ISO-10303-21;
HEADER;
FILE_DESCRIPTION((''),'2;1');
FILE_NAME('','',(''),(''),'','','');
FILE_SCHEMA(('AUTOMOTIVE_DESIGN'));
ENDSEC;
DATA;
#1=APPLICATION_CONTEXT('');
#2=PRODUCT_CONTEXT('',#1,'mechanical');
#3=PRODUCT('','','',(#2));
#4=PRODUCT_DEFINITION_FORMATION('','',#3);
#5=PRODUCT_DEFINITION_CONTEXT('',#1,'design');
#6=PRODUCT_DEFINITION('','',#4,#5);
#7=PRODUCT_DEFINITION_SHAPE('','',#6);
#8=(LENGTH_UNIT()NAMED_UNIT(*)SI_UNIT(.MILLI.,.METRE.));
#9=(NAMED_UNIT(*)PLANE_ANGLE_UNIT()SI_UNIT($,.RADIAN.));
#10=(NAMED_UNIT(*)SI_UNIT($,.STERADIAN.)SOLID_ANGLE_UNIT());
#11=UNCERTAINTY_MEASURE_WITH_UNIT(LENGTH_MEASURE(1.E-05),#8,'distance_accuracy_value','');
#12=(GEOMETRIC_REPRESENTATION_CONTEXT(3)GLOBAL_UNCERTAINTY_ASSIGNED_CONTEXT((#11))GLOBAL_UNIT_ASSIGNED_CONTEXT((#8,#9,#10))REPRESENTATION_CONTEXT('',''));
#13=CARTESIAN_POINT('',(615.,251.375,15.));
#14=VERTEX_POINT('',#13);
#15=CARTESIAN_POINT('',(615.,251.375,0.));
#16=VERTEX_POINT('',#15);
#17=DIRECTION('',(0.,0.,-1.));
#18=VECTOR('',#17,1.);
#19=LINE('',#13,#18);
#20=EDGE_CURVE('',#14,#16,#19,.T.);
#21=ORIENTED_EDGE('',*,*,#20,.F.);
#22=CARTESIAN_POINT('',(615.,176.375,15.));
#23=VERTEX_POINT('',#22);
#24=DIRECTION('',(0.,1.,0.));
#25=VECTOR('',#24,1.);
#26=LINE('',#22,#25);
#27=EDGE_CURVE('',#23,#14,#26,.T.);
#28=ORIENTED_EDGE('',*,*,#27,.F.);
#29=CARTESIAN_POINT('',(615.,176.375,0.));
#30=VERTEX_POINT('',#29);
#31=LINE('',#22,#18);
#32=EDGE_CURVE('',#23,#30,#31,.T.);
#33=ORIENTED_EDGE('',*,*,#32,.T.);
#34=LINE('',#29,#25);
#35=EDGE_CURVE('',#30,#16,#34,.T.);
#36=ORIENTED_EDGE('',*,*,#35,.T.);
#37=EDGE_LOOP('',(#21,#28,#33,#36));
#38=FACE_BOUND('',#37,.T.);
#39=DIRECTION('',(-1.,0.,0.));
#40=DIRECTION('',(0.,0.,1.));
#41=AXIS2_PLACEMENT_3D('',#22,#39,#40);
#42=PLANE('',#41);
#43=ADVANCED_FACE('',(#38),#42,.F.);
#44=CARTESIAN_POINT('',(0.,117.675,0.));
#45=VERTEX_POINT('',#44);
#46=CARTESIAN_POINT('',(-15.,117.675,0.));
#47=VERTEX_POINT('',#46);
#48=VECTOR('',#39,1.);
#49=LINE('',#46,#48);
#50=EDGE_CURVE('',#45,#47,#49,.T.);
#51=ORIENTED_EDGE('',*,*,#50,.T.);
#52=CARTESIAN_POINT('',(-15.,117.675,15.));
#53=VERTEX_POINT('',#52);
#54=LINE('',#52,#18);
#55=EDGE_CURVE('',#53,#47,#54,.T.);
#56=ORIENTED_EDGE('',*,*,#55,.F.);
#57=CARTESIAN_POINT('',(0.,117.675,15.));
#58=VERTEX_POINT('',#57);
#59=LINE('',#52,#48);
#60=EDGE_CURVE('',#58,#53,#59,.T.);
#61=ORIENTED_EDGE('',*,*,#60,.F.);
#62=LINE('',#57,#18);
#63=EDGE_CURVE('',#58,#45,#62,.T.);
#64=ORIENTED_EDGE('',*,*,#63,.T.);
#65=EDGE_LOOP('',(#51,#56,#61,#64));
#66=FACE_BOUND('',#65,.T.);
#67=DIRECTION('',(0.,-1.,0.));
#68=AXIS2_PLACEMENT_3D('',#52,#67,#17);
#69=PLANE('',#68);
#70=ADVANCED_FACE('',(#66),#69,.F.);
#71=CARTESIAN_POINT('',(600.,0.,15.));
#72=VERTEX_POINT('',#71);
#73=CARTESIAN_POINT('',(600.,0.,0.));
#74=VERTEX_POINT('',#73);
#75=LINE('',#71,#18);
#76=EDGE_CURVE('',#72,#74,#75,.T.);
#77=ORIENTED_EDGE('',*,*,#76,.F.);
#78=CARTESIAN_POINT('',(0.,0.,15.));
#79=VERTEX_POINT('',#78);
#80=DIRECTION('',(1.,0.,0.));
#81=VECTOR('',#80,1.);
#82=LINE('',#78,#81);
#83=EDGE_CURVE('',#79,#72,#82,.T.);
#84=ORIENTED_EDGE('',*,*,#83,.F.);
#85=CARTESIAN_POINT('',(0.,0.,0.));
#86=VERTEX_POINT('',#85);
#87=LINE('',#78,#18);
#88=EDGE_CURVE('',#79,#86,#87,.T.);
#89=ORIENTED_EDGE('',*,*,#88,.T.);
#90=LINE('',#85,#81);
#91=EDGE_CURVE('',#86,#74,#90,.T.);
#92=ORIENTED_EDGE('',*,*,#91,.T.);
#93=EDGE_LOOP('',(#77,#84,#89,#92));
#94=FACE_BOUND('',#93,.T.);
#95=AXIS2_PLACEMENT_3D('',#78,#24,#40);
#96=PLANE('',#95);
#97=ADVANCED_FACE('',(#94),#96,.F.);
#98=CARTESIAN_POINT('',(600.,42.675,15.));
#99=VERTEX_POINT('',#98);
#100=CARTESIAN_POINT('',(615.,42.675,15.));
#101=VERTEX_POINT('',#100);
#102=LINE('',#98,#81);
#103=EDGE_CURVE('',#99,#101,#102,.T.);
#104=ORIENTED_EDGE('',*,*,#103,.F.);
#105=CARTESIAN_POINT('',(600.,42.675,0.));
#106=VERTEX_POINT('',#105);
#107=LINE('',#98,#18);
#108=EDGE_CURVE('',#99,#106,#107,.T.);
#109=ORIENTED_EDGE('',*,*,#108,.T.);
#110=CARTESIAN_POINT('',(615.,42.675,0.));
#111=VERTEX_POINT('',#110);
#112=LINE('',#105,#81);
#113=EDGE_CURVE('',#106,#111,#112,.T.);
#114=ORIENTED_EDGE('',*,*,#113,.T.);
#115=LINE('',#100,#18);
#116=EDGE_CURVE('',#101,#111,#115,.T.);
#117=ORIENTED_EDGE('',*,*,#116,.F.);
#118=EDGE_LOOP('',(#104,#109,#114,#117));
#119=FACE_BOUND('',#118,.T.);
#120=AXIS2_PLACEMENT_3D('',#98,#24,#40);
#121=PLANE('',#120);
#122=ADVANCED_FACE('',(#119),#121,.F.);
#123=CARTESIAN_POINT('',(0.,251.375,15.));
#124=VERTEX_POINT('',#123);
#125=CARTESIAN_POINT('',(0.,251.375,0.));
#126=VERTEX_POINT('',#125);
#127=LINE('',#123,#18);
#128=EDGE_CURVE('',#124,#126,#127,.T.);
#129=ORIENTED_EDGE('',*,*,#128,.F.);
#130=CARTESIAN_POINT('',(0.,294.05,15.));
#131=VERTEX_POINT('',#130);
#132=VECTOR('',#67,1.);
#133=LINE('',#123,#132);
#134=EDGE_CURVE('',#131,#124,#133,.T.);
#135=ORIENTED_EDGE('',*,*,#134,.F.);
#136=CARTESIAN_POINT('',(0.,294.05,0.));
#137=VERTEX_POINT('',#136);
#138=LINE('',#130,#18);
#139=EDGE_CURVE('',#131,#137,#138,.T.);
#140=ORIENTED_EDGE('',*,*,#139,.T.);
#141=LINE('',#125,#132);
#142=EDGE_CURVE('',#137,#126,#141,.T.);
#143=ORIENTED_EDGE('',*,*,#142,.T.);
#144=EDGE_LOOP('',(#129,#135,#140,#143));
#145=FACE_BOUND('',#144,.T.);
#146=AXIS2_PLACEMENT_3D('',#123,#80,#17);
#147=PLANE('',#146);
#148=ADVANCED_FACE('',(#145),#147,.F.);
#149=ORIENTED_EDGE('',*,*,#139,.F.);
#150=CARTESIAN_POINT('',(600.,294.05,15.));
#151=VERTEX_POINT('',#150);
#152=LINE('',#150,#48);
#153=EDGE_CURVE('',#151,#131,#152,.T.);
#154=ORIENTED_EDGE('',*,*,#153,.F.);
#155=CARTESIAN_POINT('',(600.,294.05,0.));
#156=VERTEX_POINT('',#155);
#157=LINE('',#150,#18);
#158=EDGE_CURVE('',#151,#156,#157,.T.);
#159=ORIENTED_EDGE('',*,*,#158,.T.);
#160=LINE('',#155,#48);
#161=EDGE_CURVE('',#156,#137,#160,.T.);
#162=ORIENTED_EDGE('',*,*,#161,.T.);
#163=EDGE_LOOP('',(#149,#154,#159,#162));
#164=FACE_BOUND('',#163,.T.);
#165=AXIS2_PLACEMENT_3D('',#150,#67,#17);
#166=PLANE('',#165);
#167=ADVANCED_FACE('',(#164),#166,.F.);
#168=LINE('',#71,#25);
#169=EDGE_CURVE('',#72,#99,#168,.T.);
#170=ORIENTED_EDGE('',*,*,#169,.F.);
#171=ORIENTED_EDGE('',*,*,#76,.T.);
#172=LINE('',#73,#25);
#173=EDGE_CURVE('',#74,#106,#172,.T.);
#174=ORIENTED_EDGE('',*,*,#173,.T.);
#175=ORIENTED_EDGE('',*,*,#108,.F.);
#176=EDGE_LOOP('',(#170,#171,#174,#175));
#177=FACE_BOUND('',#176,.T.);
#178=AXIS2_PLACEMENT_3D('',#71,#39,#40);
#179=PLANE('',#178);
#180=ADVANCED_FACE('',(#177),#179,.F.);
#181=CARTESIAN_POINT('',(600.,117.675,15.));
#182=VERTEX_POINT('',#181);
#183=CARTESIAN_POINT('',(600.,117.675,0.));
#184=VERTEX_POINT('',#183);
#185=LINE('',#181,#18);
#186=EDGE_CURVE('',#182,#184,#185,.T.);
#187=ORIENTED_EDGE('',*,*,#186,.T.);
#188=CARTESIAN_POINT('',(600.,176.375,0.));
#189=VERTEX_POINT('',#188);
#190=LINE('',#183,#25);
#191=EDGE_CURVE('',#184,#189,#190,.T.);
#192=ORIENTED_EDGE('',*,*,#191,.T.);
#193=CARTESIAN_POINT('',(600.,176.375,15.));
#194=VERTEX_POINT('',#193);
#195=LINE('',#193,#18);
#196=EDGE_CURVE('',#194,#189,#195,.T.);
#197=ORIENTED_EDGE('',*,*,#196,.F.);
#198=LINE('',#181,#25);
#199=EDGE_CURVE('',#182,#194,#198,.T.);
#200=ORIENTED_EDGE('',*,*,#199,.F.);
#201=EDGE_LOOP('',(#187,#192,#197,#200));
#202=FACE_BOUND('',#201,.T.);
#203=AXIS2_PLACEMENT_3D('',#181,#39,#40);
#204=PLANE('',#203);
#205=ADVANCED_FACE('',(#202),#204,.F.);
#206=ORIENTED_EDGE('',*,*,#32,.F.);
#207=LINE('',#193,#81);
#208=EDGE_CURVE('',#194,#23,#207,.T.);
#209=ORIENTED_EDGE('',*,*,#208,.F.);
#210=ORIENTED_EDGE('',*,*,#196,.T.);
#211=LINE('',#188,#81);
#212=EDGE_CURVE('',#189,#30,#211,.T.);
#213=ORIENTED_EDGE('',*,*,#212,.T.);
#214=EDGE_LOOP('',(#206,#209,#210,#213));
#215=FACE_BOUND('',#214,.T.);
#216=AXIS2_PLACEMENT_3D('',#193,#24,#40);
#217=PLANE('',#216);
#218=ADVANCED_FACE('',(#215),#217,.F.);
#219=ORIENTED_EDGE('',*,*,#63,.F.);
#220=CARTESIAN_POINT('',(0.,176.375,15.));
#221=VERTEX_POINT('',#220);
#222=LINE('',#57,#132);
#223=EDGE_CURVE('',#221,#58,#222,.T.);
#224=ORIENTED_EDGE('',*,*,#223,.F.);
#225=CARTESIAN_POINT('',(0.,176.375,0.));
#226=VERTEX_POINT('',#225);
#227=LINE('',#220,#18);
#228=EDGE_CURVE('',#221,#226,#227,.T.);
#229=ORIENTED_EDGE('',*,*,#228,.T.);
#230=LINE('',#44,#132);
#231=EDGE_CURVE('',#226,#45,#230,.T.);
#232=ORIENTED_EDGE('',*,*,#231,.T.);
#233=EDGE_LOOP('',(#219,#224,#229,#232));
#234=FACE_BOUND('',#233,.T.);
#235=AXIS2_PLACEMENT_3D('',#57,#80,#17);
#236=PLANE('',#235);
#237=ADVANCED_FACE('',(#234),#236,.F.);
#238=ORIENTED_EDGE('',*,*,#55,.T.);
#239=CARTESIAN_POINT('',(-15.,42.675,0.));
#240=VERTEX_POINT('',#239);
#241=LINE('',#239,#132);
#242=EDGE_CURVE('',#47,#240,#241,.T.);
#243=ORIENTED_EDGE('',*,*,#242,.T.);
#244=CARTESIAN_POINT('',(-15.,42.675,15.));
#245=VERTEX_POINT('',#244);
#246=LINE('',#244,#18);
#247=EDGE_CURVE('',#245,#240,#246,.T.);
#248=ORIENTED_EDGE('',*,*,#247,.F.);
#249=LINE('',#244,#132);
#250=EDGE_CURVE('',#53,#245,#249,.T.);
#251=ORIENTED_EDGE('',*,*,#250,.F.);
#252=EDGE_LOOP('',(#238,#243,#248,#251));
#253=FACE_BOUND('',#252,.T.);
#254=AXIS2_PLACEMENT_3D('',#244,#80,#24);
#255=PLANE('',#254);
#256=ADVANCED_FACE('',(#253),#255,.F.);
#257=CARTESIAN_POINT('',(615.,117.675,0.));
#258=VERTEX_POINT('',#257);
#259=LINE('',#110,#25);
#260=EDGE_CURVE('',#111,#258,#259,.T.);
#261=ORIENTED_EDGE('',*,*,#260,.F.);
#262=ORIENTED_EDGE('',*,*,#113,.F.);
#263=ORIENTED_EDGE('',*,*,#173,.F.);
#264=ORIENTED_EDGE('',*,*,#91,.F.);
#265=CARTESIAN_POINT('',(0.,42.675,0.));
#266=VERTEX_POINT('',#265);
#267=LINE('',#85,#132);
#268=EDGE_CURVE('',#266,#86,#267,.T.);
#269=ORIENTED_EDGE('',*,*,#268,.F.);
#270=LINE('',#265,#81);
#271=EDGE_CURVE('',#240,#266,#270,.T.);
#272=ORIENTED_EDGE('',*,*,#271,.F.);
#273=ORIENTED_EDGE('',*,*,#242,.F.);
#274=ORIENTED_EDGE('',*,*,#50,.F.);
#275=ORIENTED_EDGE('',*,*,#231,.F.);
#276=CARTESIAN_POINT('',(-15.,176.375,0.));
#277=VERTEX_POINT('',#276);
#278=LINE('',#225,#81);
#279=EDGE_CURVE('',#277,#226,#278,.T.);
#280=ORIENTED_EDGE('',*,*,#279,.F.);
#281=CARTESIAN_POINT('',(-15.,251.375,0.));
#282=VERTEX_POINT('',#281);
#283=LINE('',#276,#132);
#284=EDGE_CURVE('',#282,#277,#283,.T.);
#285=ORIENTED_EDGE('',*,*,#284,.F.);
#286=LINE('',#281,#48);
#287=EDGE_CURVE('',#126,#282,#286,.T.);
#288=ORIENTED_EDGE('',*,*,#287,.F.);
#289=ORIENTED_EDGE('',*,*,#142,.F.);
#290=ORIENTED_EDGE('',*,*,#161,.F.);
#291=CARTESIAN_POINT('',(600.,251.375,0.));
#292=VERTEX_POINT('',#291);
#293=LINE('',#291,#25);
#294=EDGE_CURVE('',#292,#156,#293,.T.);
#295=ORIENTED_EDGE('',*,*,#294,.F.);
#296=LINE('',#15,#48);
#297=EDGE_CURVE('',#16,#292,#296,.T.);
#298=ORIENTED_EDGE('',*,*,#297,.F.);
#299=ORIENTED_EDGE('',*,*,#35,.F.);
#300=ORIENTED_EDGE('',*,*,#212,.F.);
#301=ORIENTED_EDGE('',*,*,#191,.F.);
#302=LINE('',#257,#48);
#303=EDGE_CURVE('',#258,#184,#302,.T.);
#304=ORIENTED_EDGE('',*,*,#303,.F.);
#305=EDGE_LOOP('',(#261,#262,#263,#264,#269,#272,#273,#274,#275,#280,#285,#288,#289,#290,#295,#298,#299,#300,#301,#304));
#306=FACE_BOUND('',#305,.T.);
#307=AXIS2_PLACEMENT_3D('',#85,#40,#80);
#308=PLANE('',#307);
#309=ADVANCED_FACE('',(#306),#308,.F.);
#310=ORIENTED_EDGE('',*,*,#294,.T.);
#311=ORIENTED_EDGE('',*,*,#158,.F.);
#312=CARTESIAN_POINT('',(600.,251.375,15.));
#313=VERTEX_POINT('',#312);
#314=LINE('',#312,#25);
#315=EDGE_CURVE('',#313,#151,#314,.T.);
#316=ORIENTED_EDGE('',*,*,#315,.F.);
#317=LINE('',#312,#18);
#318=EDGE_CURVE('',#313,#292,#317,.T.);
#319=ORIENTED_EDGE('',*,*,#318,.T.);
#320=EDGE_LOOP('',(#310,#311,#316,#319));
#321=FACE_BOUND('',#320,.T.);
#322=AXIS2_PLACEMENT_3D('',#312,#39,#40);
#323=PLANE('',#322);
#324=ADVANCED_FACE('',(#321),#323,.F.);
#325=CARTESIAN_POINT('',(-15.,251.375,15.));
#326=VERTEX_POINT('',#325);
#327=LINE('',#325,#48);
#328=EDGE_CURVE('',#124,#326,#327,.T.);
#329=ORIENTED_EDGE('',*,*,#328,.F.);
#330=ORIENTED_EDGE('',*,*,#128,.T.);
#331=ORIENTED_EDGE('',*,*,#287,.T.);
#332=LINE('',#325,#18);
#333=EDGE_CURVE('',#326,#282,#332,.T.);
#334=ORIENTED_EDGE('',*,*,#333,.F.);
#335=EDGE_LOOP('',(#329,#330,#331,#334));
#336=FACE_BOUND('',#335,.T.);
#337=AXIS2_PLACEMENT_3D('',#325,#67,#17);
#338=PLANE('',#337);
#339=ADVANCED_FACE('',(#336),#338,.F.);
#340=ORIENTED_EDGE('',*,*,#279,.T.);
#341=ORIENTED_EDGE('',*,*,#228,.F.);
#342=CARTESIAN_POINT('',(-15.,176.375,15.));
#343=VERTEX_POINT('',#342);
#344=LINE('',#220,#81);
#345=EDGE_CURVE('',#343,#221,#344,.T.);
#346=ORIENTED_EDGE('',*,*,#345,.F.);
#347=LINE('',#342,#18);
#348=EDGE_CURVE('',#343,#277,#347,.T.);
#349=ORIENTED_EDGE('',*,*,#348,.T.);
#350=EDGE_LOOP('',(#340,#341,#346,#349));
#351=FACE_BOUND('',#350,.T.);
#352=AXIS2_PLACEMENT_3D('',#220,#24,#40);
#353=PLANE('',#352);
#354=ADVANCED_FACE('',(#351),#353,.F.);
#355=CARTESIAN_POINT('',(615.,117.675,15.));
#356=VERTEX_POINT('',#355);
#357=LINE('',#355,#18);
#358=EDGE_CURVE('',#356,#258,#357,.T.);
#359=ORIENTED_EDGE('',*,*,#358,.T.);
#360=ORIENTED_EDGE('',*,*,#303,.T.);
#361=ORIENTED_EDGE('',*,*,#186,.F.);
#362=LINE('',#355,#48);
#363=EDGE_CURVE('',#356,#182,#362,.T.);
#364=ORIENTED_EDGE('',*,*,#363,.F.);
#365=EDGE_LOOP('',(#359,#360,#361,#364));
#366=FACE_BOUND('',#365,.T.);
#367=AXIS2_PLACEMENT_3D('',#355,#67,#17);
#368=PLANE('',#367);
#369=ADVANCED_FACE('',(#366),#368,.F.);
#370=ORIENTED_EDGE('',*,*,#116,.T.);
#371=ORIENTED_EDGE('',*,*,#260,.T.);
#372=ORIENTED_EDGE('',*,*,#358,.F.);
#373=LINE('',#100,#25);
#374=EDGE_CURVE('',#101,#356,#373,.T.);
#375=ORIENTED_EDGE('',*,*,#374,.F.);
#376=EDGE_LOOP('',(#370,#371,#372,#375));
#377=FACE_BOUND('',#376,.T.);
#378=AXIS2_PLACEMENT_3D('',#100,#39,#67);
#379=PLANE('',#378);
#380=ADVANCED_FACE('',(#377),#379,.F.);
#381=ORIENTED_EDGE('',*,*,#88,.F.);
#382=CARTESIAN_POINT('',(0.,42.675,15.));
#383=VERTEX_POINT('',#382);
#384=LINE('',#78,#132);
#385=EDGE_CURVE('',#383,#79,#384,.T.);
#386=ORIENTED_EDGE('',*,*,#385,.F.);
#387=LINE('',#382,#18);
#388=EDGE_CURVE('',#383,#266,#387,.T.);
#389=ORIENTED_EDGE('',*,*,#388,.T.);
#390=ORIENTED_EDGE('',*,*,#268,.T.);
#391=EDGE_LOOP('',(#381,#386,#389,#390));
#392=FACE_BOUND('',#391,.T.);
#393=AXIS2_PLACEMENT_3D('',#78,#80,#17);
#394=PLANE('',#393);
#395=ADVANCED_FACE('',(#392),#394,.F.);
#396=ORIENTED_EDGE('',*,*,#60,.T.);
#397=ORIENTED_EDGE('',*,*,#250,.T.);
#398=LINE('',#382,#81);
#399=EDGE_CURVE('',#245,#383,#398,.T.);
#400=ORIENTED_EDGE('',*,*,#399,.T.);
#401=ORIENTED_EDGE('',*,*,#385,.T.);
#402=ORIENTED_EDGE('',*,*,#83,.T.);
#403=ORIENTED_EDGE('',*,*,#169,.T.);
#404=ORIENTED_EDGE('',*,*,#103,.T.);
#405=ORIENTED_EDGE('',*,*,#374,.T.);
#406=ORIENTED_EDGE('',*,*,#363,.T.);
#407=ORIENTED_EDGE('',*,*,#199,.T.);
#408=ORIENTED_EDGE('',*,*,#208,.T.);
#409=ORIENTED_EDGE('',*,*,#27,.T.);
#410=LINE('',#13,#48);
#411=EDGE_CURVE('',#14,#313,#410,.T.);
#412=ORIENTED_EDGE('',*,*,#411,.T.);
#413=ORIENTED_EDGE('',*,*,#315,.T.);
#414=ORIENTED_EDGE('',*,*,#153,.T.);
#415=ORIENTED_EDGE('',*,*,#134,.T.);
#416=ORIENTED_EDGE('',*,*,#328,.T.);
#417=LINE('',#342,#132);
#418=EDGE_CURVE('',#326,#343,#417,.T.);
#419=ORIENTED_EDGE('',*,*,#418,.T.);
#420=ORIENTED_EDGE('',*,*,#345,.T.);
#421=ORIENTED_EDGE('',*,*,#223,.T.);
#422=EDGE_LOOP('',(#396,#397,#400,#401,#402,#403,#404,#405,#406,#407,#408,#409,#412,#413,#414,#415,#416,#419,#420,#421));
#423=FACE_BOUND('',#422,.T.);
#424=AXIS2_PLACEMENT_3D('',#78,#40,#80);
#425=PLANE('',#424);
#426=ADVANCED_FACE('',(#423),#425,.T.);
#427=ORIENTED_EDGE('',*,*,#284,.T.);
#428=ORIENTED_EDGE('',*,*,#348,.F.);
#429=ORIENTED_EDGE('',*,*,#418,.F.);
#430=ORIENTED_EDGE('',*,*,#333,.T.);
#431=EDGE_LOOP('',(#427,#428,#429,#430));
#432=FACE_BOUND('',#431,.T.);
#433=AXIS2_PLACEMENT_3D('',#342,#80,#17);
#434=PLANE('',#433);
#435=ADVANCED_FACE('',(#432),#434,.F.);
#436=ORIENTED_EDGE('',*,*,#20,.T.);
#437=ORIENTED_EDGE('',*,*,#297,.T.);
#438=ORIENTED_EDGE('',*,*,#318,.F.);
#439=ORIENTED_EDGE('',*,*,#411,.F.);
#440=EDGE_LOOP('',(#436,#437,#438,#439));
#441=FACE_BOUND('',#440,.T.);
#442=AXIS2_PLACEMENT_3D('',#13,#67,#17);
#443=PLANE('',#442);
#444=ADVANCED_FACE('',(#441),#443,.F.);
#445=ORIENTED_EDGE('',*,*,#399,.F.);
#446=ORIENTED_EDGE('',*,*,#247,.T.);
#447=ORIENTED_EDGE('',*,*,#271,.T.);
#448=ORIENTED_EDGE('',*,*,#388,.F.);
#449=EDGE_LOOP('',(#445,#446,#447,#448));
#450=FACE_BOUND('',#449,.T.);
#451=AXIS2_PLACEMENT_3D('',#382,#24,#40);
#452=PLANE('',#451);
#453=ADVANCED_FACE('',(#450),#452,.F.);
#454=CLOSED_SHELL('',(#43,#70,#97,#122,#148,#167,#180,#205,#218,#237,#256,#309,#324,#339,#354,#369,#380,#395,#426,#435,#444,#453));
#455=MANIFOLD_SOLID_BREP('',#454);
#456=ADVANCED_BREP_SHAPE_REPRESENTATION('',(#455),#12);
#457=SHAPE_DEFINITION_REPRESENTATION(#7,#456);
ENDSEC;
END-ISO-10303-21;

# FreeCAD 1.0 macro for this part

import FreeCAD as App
import Part
import Sketcher
Q = App.Units.Quantity


def add_polygon(sketch, points):
    """Adds a closed chain of lines whose ends are joined by coincident constraints."""
    first, n = sketch.GeometryCount, len(points)
    for a, b in zip(points, points[1:] + points[:1]):
        sketch.addGeometry(Part.LineSegment(App.Vector(*a, 0), App.Vector(*b, 0)), False)
    for i in range(n):
        sketch.addConstraint(Sketcher.Constraint("Coincident", first + i, 2, first + (i + 1) % n, 1))

doc = App.newDocument("Part")
body = doc.addObject("PartDesign::Body", "Body")

sketch1 = doc.addObject("Sketcher::SketchObject", "Sketch")
body.addObject(sketch1)
sketch1.AttachmentSupport = (doc.XY_Plane, [""])
sketch1.MapMode = "FlatFace"
add_polygon(sketch1, [(0, 0), (600, 0), (600, 42.675), (615, 42.675), (615, 117.675), (600, 117.675), (600, 176.375), (615, 176.375), (615, 251.375), (600, 251.375), (600, 294.05), (0, 294.05), (0, 251.375), (-15, 251.375), (-15, 176.375), (0, 176.375), (0, 117.675), (-15, 117.675), (-15, 42.675), (0, 42.675)])
sketch1.addConstraint([
    Sketcher.Constraint("Horizontal", 0),
    Sketcher.Constraint("Vertical", 1),
    Sketcher.Constraint("Horizontal", 2),
    Sketcher.Constraint("Vertical", 3),
    Sketcher.Constraint("Horizontal", 4),
    Sketcher.Constraint("Vertical", 5),
    Sketcher.Constraint("Horizontal", 6),
    Sketcher.Constraint("Vertical", 7),
    Sketcher.Constraint("Horizontal", 8),
    Sketcher.Constraint("Vertical", 9),
    Sketcher.Constraint("Horizontal", 10),
    Sketcher.Constraint("Vertical", 11),
    Sketcher.Constraint("Horizontal", 12),
    Sketcher.Constraint("Vertical", 13),
    Sketcher.Constraint("Horizontal", 14),
    Sketcher.Constraint("Vertical", 15),
    Sketcher.Constraint("Horizontal", 16),
    Sketcher.Constraint("Vertical", 17),
    Sketcher.Constraint("Horizontal", 18),
    Sketcher.Constraint("Vertical", 19),
    Sketcher.Constraint("Coincident", 19, 2, -1, 1),
    Sketcher.Constraint("PointOnObject", 10, 2, -2),
    Sketcher.Constraint("PointOnObject", 14, 2, -2),
    Sketcher.Constraint("Horizontal", 8, 2, 11, 2),
    Sketcher.Constraint("Horizontal", 6, 2, 13, 2),
    Sketcher.Constraint("Horizontal", 4, 2, 15, 2),
    Sketcher.Constraint("Horizontal", 2, 2, 17, 2),
    Sketcher.Constraint("Vertical", 1, 2, 4, 2),
    Sketcher.Constraint("Vertical", 3, 2, 6, 2),
    Sketcher.Constraint("Vertical", 5, 2, 8, 2),
    Sketcher.Constraint("Vertical", 13, 2, 16, 2),
    Sketcher.Constraint("Equal", 8, 12),
    Sketcher.Constraint("Equal", 3, 7),
    Sketcher.Constraint("Equal", 1, 9),
    Sketcher.Constraint("DistanceX", 0, 1, 0, 2, Q("600 mm")),
    Sketcher.Constraint("DistanceX", 2, 1, 2, 2, Q("15 mm")),
    Sketcher.Constraint("DistanceY", 3, 1, 3, 2, Q("75 mm")),
    Sketcher.Constraint("DistanceY", 5, 1, 5, 2, Q("58.7 mm")),
    Sketcher.Constraint("DistanceY", 1, 1, 1, 2, Q("42.675 mm")),
])
pad1 = doc.addObject("PartDesign::Pad", "Pad")
body.addObject(pad1)
pad1.Profile = sketch1
pad1.Length = 15

doc.recompute()
